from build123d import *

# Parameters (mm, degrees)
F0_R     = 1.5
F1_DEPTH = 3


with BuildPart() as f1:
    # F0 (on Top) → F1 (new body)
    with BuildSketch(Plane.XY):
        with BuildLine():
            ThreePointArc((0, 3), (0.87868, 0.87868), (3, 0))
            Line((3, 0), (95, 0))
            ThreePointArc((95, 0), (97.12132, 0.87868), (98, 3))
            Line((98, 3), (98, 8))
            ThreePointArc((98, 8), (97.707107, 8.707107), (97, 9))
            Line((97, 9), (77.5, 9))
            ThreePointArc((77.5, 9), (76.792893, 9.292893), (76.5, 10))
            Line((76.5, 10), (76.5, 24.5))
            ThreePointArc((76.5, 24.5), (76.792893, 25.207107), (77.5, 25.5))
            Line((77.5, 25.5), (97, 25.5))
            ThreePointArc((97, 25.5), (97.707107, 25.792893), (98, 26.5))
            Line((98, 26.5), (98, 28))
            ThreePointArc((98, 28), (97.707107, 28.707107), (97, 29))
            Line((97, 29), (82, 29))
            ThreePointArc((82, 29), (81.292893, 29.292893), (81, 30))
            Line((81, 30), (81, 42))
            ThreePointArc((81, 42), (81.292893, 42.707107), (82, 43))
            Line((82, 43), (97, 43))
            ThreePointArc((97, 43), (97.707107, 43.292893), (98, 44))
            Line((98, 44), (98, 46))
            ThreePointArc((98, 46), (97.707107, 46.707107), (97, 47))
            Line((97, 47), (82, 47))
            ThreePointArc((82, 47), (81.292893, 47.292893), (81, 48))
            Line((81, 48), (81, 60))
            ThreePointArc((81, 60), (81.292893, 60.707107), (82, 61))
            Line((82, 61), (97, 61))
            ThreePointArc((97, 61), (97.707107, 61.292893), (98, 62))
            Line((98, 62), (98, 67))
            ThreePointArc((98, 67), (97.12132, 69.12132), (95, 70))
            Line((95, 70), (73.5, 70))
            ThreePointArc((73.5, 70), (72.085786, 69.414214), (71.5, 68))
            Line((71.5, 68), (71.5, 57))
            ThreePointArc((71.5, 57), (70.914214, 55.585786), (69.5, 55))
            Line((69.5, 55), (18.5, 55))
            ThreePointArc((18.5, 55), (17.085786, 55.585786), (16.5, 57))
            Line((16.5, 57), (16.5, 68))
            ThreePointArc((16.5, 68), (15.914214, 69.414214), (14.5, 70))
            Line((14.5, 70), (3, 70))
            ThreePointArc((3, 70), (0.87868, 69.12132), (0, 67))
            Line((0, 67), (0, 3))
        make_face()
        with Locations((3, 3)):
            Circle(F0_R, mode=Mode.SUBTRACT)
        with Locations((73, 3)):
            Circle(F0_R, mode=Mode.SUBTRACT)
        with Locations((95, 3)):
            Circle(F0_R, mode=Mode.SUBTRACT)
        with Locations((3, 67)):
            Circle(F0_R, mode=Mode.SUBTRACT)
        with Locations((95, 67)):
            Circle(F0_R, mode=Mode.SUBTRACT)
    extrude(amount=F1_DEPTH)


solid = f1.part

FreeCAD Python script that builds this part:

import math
import FreeCAD as App
import Part
import Sketcher

V = App.Vector
Q = App.Units.Quantity

doc = App.newDocument("Part")
body = doc.addObject("PartDesign::Body", "Body")

# Sketch on XY plane
sketch1 = body.newObject("Sketcher::SketchObject", "Sketch")
sketch1.AttachmentSupport = (doc.getObject("XY_Plane"), [""])
sketch1.MapMode = "FlatFace"
sketch1.addGeometry([
    Part.ArcOfCircle(Part.Circle(V(3.000001, 3.000001, 0), V(0, 0, 1), 3.000001), math.radians(-179.999978), math.radians(-90.000022)),  # 0
    Part.LineSegment(V(3, 0, 0), V(95, 0, 0)),  # 1
    Part.ArcOfCircle(Part.Circle(V(94.999999, 3.000001, 0), V(0, 0, 1), 3.000001), math.radians(-89.999978), math.radians(-0.000022)),  # 2
    Part.LineSegment(V(98, 3, 0), V(98, 8, 0)),  # 3
    Part.ArcOfCircle(Part.Circle(V(97.000001, 8.000001, 0), V(0, 0, 1), 0.999999), math.radians(-0.000043), math.radians(90.000043)),  # 4
    Part.LineSegment(V(97, 9, 0), V(77.5, 9, 0)),  # 5
    Part.ArcOfCircle(Part.Circle(V(77.499999, 9.999999, 0), V(0, 0, 1), 0.999999), math.radians(179.999957), math.radians(270.000043)),  # 6
    Part.LineSegment(V(76.5, 10, 0), V(76.5, 24.5, 0)),  # 7
    Part.ArcOfCircle(Part.Circle(V(77.499999, 24.500001, 0), V(0, 0, 1), 0.999999), math.radians(89.999957), math.radians(180.000043)),  # 8
    Part.LineSegment(V(77.5, 25.5, 0), V(97, 25.5, 0)),  # 9
    Part.ArcOfCircle(Part.Circle(V(97.000001, 26.499999, 0), V(0, 0, 1), 0.999999), math.radians(-90.000043), math.radians(0.000043)),  # 10
    Part.LineSegment(V(98, 26.5, 0), V(98, 28, 0)),  # 11
    Part.ArcOfCircle(Part.Circle(V(97.000001, 28.000001, 0), V(0, 0, 1), 0.999999), math.radians(-0.000043), math.radians(90.000043)),  # 12
    Part.LineSegment(V(97, 29, 0), V(82, 29, 0)),  # 13
    Part.ArcOfCircle(Part.Circle(V(81.999999, 29.999999, 0), V(0, 0, 1), 0.999999), math.radians(179.999957), math.radians(270.000043)),  # 14
    Part.LineSegment(V(81, 30, 0), V(81, 42, 0)),  # 15
    Part.ArcOfCircle(Part.Circle(V(81.999999, 42.000001, 0), V(0, 0, 1), 0.999999), math.radians(89.999957), math.radians(180.000043)),  # 16
    Part.LineSegment(V(82, 43, 0), V(97, 43, 0)),  # 17
    Part.ArcOfCircle(Part.Circle(V(97.000001, 43.999999, 0), V(0, 0, 1), 0.999999), math.radians(-90.000043), math.radians(0.000043)),  # 18
    Part.LineSegment(V(98, 44, 0), V(98, 46, 0)),  # 19
    Part.ArcOfCircle(Part.Circle(V(97.000001, 46.000001, 0), V(0, 0, 1), 0.999999), math.radians(-0.000043), math.radians(90.000043)),  # 20
    Part.LineSegment(V(97, 47, 0), V(82, 47, 0)),  # 21
    Part.ArcOfCircle(Part.Circle(V(81.999999, 47.999999, 0), V(0, 0, 1), 0.999999), math.radians(179.999957), math.radians(270.000043)),  # 22
    Part.LineSegment(V(81, 48, 0), V(81, 60, 0)),  # 23
    Part.ArcOfCircle(Part.Circle(V(81.999999, 60.000001, 0), V(0, 0, 1), 0.999999), math.radians(89.999957), math.radians(180.000043)),  # 24
    Part.LineSegment(V(82, 61, 0), V(97, 61, 0)),  # 25
    Part.ArcOfCircle(Part.Circle(V(97.000001, 61.999999, 0), V(0, 0, 1), 0.999999), math.radians(-90.000043), math.radians(0.000043)),  # 26
    Part.LineSegment(V(98, 62, 0), V(98, 67, 0)),  # 27
    Part.ArcOfCircle(Part.Circle(V(94.999999, 66.999999, 0), V(0, 0, 1), 3.000001), math.radians(0.000022), math.radians(89.999978)),  # 28
    Part.LineSegment(V(95, 70, 0), V(73.5, 70, 0)),  # 29
    Part.ArcOfCircle(Part.Circle(V(73.499999, 68.000001, 0), V(0, 0, 1), 1.999999), math.radians(89.999957), math.radians(180.000043)),  # 30
    Part.LineSegment(V(71.5, 68, 0), V(71.5, 57, 0)),  # 31
    Part.ArcOfCircle(Part.Circle(V(69.500001, 56.999999, 0), V(0, 0, 1), 1.999999), math.radians(-90.000043), math.radians(0.000043)),  # 32
    Part.LineSegment(V(69.5, 55, 0), V(18.5, 55, 0)),  # 33
    Part.ArcOfCircle(Part.Circle(V(18.499999, 56.999999, 0), V(0, 0, 1), 1.999999), math.radians(179.999957), math.radians(270.000043)),  # 34
    Part.LineSegment(V(16.5, 57, 0), V(16.5, 68, 0)),  # 35
    Part.ArcOfCircle(Part.Circle(V(14.500001, 68.000001, 0), V(0, 0, 1), 1.999999), math.radians(-0.000043), math.radians(90.000043)),  # 36
    Part.LineSegment(V(14.5, 70, 0), V(3, 70, 0)),  # 37
    Part.ArcOfCircle(Part.Circle(V(3.000001, 66.999999, 0), V(0, 0, 1), 3.000001), math.radians(90.000022), math.radians(179.999978)),  # 38
    Part.LineSegment(V(0, 67, 0), V(0, 3, 0)),  # 39
    Part.Circle(V(3, 3, 0), V(0, 0, 1), 1.5),  # 40
    Part.Circle(V(73, 3, 0), V(0, 0, 1), 1.5),  # 41
    Part.Circle(V(95, 3, 0), V(0, 0, 1), 1.5),  # 42
    Part.Circle(V(3, 67, 0), V(0, 0, 1), 1.5),  # 43
    Part.Circle(V(95, 67, 0), V(0, 0, 1), 1.5),  # 44
], False)
sketch1.addConstraint([
    Sketcher.Constraint("Tangent", 0, 2, 1, 1),
    Sketcher.Constraint("Tangent", 1, 2, 2, 1),
    Sketcher.Constraint("Tangent", 2, 2, 3, 1),
    Sketcher.Constraint("Tangent", 3, 2, 4, 1),
    Sketcher.Constraint("Tangent", 4, 2, 5, 1),
    Sketcher.Constraint("Tangent", 5, 2, 6, 2),
    Sketcher.Constraint("Tangent", 6, 1, 7, 1),
    Sketcher.Constraint("Tangent", 7, 2, 8, 2),
    Sketcher.Constraint("Tangent", 8, 1, 9, 1),
    Sketcher.Constraint("Tangent", 9, 2, 10, 1),
    Sketcher.Constraint("Tangent", 10, 2, 11, 1),
    Sketcher.Constraint("Tangent", 11, 2, 12, 1),
    Sketcher.Constraint("Tangent", 12, 2, 13, 1),
    Sketcher.Constraint("Tangent", 13, 2, 14, 2),
    Sketcher.Constraint("Tangent", 14, 1, 15, 1),
    Sketcher.Constraint("Tangent", 15, 2, 16, 2),
    Sketcher.Constraint("Tangent", 16, 1, 17, 1),
    Sketcher.Constraint("Tangent", 17, 2, 18, 1),
    Sketcher.Constraint("Tangent", 18, 2, 19, 1),
    Sketcher.Constraint("Tangent", 19, 2, 20, 1),
    Sketcher.Constraint("Tangent", 20, 2, 21, 1),
    Sketcher.Constraint("Tangent", 21, 2, 22, 2),
    Sketcher.Constraint("Tangent", 22, 1, 23, 1),
    Sketcher.Constraint("Tangent", 23, 2, 24, 2),
    Sketcher.Constraint("Tangent", 24, 1, 25, 1),
    Sketcher.Constraint("Tangent", 25, 2, 26, 1),
    Sketcher.Constraint("Tangent", 26, 2, 27, 1),
    Sketcher.Constraint("Tangent", 27, 2, 28, 1),
    Sketcher.Constraint("Tangent", 28, 2, 29, 1),
    Sketcher.Constraint("Tangent", 29, 2, 30, 1),
    Sketcher.Constraint("Tangent", 30, 2, 31, 1),
    Sketcher.Constraint("Tangent", 31, 2, 32, 2),
    Sketcher.Constraint("Tangent", 32, 1, 33, 1),
    Sketcher.Constraint("Tangent", 33, 2, 34, 2),
    Sketcher.Constraint("Tangent", 34, 1, 35, 1),
    Sketcher.Constraint("Tangent", 35, 2, 36, 1),
    Sketcher.Constraint("Tangent", 36, 2, 37, 1),
    Sketcher.Constraint("Tangent", 37, 2, 38, 1),
    Sketcher.Constraint("Tangent", 38, 2, 39, 1),
    Sketcher.Constraint("Tangent", 39, 2, 0, 1),
    Sketcher.Constraint("Horizontal", 1),
    Sketcher.Constraint("Vertical", 3),
    Sketcher.Constraint("Horizontal", 5),
    Sketcher.Constraint("Vertical", 7),
    Sketcher.Constraint("Horizontal", 9),
    Sketcher.Constraint("Vertical", 11),
    Sketcher.Constraint("Horizontal", 13),
    Sketcher.Constraint("Vertical", 15),
    Sketcher.Constraint("Horizontal", 17),
    Sketcher.Constraint("Vertical", 19),
    Sketcher.Constraint("Horizontal", 21),
    Sketcher.Constraint("Vertical", 23),
    Sketcher.Constraint("Horizontal", 25),
    Sketcher.Constraint("Vertical", 27),
    Sketcher.Constraint("Horizontal", 29),
    Sketcher.Constraint("Vertical", 31),
    Sketcher.Constraint("Horizontal", 33),
    Sketcher.Constraint("Vertical", 35),
    Sketcher.Constraint("Horizontal", 37),
    Sketcher.Constraint("Vertical", 39),
    Sketcher.Constraint("Coincident", 40, 3, 0, 3),
    Sketcher.Constraint("Coincident", 42, 3, 2, 3),
    Sketcher.Constraint("Coincident", 43, 3, 38, 3),
    Sketcher.Constraint("Coincident", 44, 3, 28, 3),
    Sketcher.Constraint("Equal", 0, 2),
    Sketcher.Constraint("Equal", 4, 6),
    Sketcher.Constraint("Equal", 6, 8),
    Sketcher.Constraint("Equal", 8, 10),
    Sketcher.Constraint("Equal", 10, 12),
    Sketcher.Constraint("Equal", 12, 14),
    Sketcher.Constraint("Equal", 14, 16),
    Sketcher.Constraint("Equal", 16, 18),
    Sketcher.Constraint("Equal", 18, 20),
    Sketcher.Constraint("Equal", 20, 22),
    Sketcher.Constraint("Equal", 22, 24),
    Sketcher.Constraint("Equal", 24, 26),
    Sketcher.Constraint("Equal", 2, 28),
    Sketcher.Constraint("Equal", 30, 32),
    Sketcher.Constraint("Equal", 32, 34),
    Sketcher.Constraint("Equal", 34, 36),
    Sketcher.Constraint("Equal", 28, 38),
    Sketcher.Constraint("Equal", 40, 41),
    Sketcher.Constraint("Equal", 41, 42),
    Sketcher.Constraint("Equal", 42, 43),
    Sketcher.Constraint("Equal", 43, 44),
    Sketcher.Constraint("PointOnObject", 0, 2, -1),
    Sketcher.Constraint("PointOnObject", 38, 2, -2),
    Sketcher.Constraint("Horizontal", 30, 3, 36, 3),
    Sketcher.Constraint("Horizontal", 40, 3, 41, 3),
    Sketcher.Constraint("Vertical", 4, 3, 10, 3),
    Sketcher.Constraint("Vertical", 12, 3, 18, 3),
    Sketcher.Constraint("Vertical", 16, 3, 22, 3),
    Sketcher.Constraint("Vertical", 20, 3, 26, 3),
    Sketcher.Constraint("Equal", 15, 23),
    Sketcher.Constraint("Equal", 3, 27),
    Sketcher.Constraint("Diameter", 40, Q("3 mm")),
    Sketcher.Constraint("Radius", 0, Q("3.000001 mm")),
    Sketcher.Constraint("Radius", 4, Q("0.999999 mm")),
    Sketcher.Constraint("Radius", 30, Q("1.999999 mm")),
    Sketcher.Constraint("DistanceX", 1, 1, 1, 2, Q("92 mm")),
    Sketcher.Constraint("DistanceX", 13, 2, 13, 1, Q("15 mm")),
    Sketcher.Constraint("DistanceX", 33, 2, 33, 1, Q("51 mm")),
    Sketcher.Constraint("DistanceY", 3, 1, 3, 2, Q("5 mm")),
    Sketcher.Constraint("DistanceY", 15, 1, 15, 2, Q("12 mm")),
    Sketcher.Constraint("DistanceY", 19, 1, 19, 2, Q("2 mm")),
    Sketcher.Constraint("DistanceY", 31, 2, 31, 1, Q("11 mm")),
    Sketcher.Constraint("DistanceY", 39, 2, 39, 1, Q("64 mm")),
    Sketcher.Constraint("DistanceX", 5, 2, 5, 1, Q("19.5 mm")),
    Sketcher.Constraint("DistanceX", 29, 2, 29, 1, Q("21.5 mm")),
    Sketcher.Constraint("DistanceY", 7, 1, 7, 2, Q("14.5 mm")),
    Sketcher.Constraint("DistanceX", -1, 1, 41, 3, Q("73 mm")),
])
pad1 = body.newObject("PartDesign::Pad", "Pad")
pad1.Profile = sketch1
pad1.Length = 3

doc.recompute()
